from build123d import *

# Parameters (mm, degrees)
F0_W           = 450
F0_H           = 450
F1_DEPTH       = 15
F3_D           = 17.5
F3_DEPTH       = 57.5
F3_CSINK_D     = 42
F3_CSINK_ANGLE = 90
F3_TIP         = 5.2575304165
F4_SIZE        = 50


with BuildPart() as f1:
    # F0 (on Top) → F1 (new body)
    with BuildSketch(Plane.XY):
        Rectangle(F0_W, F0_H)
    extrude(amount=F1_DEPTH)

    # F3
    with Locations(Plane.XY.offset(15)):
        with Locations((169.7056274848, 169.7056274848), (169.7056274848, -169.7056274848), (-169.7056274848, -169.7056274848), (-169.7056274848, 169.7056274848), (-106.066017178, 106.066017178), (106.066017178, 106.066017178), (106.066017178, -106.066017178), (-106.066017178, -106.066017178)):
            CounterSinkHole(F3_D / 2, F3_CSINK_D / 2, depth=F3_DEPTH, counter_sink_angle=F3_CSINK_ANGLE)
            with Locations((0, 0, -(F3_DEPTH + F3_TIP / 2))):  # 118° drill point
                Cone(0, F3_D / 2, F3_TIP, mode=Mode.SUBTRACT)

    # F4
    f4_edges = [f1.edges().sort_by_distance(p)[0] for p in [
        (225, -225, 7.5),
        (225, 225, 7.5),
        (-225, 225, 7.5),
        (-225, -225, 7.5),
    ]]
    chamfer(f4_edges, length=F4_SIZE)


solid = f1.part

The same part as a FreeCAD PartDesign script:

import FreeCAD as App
import Part
import Sketcher

V = App.Vector
Q = App.Units.Quantity


def edges_at(feature, points):
    """Names of the edges that pass closest to the given points."""
    edges = feature.Shape.Edges
    near = lambda p: min(range(len(edges)), key=lambda i: edges[i].distToShape(Part.Vertex(*p))[0])
    return sorted({f"Edge{near(p) + 1}" for p in points})


def add_polygon(sketch, points):
    """Adds a closed chain of lines whose ends are joined by coincident constraints."""
    first, n = sketch.GeometryCount, len(points)
    for a, b in zip(points, points[1:] + points[:1]):
        sketch.addGeometry(Part.LineSegment(App.Vector(*a, 0), App.Vector(*b, 0)), False)
    for i in range(n):
        sketch.addConstraint(Sketcher.Constraint("Coincident", first + i, 2, first + (i + 1) % n, 1))

doc = App.newDocument("Part")
body = doc.addObject("PartDesign::Body", "Body")

sketch1 = body.newObject("Sketcher::SketchObject", "Sketch")
sketch1.AttachmentSupport = (doc.getObject("XY_Plane"), [""])
sketch1.MapMode = "FlatFace"
add_polygon(sketch1, [(-225, 225), (-225, -225), (225, -225), (225, 225)])
sketch1.addConstraint([
    Sketcher.Constraint("Vertical", 0),
    Sketcher.Constraint("Horizontal", 1),
    Sketcher.Constraint("Vertical", 2),
    Sketcher.Constraint("Horizontal", 3),
    Sketcher.Constraint("Symmetric", 0, 2, 2, 2, -1, 1),
    Sketcher.Constraint("Equal", 3, 0),
    Sketcher.Constraint("DistanceX", 1, 1, 1, 2, Q("450 mm")),
])
pad1 = body.newObject("PartDesign::Pad", "Pad")
pad1.Profile = sketch1
pad1.Length = 15

sketch2 = body.newObject("Sketcher::SketchObject", "Sketch001")
sketch2.AttachmentSupport = (doc.getObject("XY_Plane"), [""])
sketch2.MapMode = "FlatFace"
sketch2.AttachmentOffset = App.Placement(V(0, 0, 15), App.Rotation())
sketch2.addGeometry([
    Part.Circle(V(170, 170, 0), V(0, 0, 1), 9),
    Part.Circle(V(170, -170, 0), V(0, 0, 1), 9),
    Part.Circle(V(-170, -170, 0), V(0, 0, 1), 9),
    Part.Circle(V(-170, 170, 0), V(0, 0, 1), 9),
    Part.Circle(V(-106, 106, 0), V(0, 0, 1), 9),
    Part.Circle(V(106, 106, 0), V(0, 0, 1), 9),
    Part.Circle(V(106, -106, 0), V(0, 0, 1), 9),
    Part.Circle(V(-106, -106, 0), V(0, 0, 1), 9),
], False)
sketch2.addConstraint([
    Sketcher.Constraint("Equal", 0, 1),
    Sketcher.Constraint("Equal", 1, 2),
    Sketcher.Constraint("Equal", 2, 3),
    Sketcher.Constraint("Equal", 3, 4),
    Sketcher.Constraint("Equal", 4, 5),
    Sketcher.Constraint("Equal", 5, 6),
    Sketcher.Constraint("Equal", 6, 7),
    Sketcher.Constraint("Symmetric", 0, 3, 2, 3, -1, 1),
    Sketcher.Constraint("Symmetric", 1, 3, 3, 3, -1, 1),
    Sketcher.Constraint("Symmetric", 4, 3, 6, 3, -1, 1),
    Sketcher.Constraint("Symmetric", 5, 3, 7, 3, -1, 1),
    Sketcher.Constraint("Symmetric", 1, 3, 2, 3, -2),
    Sketcher.Constraint("Symmetric", 4, 3, 5, 3, -2),
    Sketcher.Constraint("Diameter", 0, Q("17.5 mm")),
    Sketcher.Constraint("DistanceX", 3, 3, 4, 3, Q("63.63961 mm")),
    Sketcher.Constraint("DistanceY", 4, 3, 3, 3, Q("63.63961 mm")),
    Sketcher.Constraint("DistanceX", -1, 1, 0, 3, Q("169.705627 mm")),
    Sketcher.Constraint("DistanceY", -1, 1, 0, 3, Q("169.705627 mm")),
])
doc.recompute()
hole = body.newObject("PartDesign::Hole", "Hole")
hole.Profile = sketch2
hole.ThreadType = "None"
hole.Diameter = 17.5
hole.DepthType = "Dimension"
hole.Depth = 57.5
hole.DrillPoint = "Angled"
hole.DrillPointAngle = 118
hole.HoleCutType = "Countersink"
hole.HoleCutDiameter = 42
hole.HoleCutCountersinkAngle = 90
doc.recompute()

chamfer = body.newObject("PartDesign::Chamfer", "Chamfer")
chamfer.Base = (hole, edges_at(hole, [
    (225, -225, 7.5),
    (225, 225, 7.5),
    (-225, 225, 7.5),
    (-225, -225, 7.5),
]))
chamfer.Size = 50

doc.recompute()
